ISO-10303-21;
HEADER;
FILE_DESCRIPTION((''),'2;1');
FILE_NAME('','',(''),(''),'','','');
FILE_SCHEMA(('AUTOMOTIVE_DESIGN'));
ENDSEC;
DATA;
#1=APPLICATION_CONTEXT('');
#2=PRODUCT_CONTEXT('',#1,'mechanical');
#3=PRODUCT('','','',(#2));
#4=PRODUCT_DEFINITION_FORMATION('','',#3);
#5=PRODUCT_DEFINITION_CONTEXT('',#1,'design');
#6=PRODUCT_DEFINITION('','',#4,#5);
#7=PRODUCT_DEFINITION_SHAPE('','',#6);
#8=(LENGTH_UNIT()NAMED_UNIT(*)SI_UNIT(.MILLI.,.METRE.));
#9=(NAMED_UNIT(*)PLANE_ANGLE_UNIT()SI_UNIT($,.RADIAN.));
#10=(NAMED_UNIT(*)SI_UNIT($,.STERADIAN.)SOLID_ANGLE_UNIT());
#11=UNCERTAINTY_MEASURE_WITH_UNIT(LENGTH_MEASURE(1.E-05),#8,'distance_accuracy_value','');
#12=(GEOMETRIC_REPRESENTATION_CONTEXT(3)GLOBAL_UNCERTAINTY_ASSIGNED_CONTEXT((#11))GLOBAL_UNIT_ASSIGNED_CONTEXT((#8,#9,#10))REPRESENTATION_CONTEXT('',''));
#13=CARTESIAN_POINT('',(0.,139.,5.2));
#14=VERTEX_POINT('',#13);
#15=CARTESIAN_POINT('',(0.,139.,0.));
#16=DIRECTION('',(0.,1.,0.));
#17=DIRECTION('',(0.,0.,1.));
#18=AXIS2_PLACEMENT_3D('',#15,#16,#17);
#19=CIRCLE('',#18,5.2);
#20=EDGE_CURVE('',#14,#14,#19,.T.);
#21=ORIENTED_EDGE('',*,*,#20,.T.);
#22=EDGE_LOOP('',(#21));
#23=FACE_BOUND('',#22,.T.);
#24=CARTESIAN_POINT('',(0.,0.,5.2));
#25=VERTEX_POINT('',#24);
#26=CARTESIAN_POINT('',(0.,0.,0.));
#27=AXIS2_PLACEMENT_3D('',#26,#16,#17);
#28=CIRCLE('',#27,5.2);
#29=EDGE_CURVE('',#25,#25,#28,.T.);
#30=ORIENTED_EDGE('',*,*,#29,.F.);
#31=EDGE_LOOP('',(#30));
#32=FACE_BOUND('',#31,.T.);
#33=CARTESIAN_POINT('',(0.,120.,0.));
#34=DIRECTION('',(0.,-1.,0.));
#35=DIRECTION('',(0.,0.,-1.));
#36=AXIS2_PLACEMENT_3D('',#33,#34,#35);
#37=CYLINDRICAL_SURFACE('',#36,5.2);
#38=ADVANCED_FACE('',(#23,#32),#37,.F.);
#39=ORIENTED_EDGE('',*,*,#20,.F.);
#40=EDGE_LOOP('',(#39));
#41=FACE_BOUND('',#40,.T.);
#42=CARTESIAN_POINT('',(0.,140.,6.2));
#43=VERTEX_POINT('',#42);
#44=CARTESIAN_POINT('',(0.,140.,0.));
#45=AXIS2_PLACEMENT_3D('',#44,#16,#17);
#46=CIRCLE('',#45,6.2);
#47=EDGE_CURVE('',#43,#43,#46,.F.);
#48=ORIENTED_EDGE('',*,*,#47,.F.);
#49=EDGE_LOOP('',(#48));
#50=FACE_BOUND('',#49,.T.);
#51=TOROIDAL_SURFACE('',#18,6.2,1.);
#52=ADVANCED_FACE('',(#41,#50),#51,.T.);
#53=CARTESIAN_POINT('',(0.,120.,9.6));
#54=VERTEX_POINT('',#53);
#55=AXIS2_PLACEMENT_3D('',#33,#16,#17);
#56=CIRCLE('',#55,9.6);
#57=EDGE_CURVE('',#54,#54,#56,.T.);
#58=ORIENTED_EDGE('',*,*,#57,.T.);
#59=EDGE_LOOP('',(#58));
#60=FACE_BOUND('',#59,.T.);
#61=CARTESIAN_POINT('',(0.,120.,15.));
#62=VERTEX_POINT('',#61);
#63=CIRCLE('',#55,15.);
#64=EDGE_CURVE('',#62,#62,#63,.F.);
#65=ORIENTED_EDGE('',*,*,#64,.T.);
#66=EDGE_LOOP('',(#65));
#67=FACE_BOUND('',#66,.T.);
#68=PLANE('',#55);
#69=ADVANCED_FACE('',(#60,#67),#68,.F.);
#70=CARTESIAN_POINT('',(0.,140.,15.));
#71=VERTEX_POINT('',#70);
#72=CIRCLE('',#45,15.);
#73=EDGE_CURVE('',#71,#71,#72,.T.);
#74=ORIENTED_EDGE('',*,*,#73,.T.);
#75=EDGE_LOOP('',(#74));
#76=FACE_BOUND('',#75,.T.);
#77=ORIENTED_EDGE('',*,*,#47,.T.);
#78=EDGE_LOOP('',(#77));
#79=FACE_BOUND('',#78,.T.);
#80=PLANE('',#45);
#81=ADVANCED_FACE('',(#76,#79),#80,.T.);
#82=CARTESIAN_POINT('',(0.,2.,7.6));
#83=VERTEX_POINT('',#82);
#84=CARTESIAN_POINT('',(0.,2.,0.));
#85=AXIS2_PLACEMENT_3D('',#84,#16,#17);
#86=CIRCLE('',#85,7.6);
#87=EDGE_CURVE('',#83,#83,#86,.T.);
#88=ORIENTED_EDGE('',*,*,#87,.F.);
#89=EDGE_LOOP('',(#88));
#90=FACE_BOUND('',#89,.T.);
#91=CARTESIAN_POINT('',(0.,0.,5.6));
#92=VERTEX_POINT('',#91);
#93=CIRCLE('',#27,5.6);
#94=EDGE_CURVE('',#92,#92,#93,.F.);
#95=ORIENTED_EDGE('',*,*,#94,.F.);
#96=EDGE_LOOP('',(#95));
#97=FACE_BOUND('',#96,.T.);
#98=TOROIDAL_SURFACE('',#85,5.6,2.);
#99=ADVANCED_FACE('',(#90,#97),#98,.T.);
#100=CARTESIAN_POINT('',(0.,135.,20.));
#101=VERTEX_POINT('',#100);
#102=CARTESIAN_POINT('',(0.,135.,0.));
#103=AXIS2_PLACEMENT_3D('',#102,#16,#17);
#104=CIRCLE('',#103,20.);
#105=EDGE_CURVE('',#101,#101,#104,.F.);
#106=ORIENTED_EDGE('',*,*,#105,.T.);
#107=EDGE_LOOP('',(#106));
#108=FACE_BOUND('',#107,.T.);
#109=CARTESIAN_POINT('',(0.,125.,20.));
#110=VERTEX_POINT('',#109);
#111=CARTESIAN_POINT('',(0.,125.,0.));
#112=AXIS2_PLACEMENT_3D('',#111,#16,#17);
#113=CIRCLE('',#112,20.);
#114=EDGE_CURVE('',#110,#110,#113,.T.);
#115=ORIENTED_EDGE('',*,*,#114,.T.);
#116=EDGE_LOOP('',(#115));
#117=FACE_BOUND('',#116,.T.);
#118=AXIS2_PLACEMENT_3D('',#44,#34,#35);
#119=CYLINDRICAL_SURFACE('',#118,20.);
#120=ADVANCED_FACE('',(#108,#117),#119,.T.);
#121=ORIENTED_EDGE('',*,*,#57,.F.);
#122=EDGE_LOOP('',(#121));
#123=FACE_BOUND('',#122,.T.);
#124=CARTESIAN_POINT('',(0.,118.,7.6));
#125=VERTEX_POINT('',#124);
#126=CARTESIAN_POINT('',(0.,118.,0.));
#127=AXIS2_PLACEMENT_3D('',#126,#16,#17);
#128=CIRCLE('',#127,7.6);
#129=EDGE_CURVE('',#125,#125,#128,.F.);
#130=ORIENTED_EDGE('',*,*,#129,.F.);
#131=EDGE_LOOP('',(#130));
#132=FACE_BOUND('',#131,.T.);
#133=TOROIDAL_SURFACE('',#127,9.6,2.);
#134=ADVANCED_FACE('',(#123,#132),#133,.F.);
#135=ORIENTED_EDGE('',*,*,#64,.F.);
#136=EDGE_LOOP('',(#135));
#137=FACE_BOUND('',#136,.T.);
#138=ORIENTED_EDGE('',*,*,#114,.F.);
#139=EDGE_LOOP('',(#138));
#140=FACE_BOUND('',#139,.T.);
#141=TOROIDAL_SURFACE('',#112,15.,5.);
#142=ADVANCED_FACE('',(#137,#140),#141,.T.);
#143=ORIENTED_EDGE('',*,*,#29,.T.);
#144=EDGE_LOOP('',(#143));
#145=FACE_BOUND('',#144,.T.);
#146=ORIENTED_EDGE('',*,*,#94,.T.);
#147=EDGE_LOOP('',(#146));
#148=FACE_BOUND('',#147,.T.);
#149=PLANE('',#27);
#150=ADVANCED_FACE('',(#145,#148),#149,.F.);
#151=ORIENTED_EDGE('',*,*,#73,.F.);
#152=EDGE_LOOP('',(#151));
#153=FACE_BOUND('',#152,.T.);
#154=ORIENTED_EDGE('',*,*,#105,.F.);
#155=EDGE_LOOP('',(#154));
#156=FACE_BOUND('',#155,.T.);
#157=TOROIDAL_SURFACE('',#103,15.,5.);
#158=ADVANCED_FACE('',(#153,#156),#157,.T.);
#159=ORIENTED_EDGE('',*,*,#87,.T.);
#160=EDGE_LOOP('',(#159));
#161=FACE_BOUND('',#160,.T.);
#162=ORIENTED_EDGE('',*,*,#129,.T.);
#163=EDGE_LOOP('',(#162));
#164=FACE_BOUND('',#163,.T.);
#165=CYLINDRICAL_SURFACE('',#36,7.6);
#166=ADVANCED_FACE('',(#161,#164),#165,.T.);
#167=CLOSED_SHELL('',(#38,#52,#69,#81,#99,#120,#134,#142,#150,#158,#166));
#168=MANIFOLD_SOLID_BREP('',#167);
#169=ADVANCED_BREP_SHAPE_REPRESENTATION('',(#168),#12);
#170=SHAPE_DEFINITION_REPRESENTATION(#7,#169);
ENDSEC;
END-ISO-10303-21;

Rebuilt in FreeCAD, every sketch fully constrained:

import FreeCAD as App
import Part
import Sketcher

V = App.Vector
Q = App.Units.Quantity


def edges_at(feature, points):
    """Names of the edges that pass closest to the given points."""
    edges = feature.Shape.Edges
    near = lambda p: min(range(len(edges)), key=lambda i: edges[i].distToShape(Part.Vertex(*p))[0])
    return sorted({f"Edge{near(p) + 1}" for p in points})

doc = App.newDocument("Part")
params = doc.addObject("Spreadsheet::Sheet", "Params")
for row, (alias, value) in enumerate([
    ("sketch1_diameter", "15.2 mm"),
    ("sketch1_diameter2", "10.4 mm"),
    ("pad1_length", "120 mm"),
    ("sketch2_diameter", "40 mm"),
    ("pad2_length", "20 mm"),
    ("sketch3_diameter", "10.4 mm"),
    ("pocket1_length", "157 mm"),
    ("fillet_radius", "5 mm"),
    ("fillet2_radius", "2 mm"),
    ("fillet3_radius", "1 mm"),
], start=1):
    params.set(f"A{row}", alias)
    params.set(f"B{row}", "=" + value)
    params.setAlias(f"B{row}", alias)

body = doc.addObject("PartDesign::Body", "Body")

sketch1 = body.newObject("Sketcher::SketchObject", "Sketch")
sketch1.AttachmentSupport = (doc.getObject("XZ_Plane"), [""])
sketch1.MapMode = "FlatFace"
sketch1.addGeometry(Part.Circle(V(0, 0, 0), V(0, 0, 1), 7.6), False)
sketch1.addGeometry(Part.Circle(V(0, 0, 0), V(0, 0, 1), 5.2), False)
sketch1.addConstraint(Sketcher.Constraint("Coincident", 0, 3, -1, 1))
sketch1.addConstraint(Sketcher.Constraint("Coincident", 1, 3, -1, 1))
sketch1.addConstraint(Sketcher.Constraint("Diameter", 0, Q("15.2 mm")))
sketch1.addConstraint(Sketcher.Constraint("Diameter", 1, Q("10.4 mm")))
sketch1.setExpression("Constraints[2]", "Params.sketch1_diameter")
sketch1.setExpression("Constraints[3]", "Params.sketch1_diameter2")
pad1 = body.newObject("PartDesign::Pad", "Pad")
pad1.Profile = sketch1
pad1.setExpression("Length", "Params.pad1_length")
pad1.Reversed = True

sketch2 = body.newObject("Sketcher::SketchObject", "Sketch001")
sketch2.AttachmentSupport = (doc.getObject("XZ_Plane"), [""])
sketch2.MapMode = "FlatFace"
sketch2.AttachmentOffset = App.Placement(V(0, 0, -120), App.Rotation())
sketch2.addGeometry(Part.Circle(V(0, 0, 0), V(0, 0, 1), 20), False)
sketch2.addConstraint(Sketcher.Constraint("Coincident", 0, 3, -1, 1))
sketch2.addConstraint(Sketcher.Constraint("Diameter", 0, Q("40 mm")))
sketch2.setExpression("Constraints[1]", "Params.sketch2_diameter")
pad2 = body.newObject("PartDesign::Pad", "Pad001")
pad2.Profile = sketch2
pad2.setExpression("Length", "Params.pad2_length")
pad2.Reversed = True

sketch3 = body.newObject("Sketcher::SketchObject", "Sketch002")
sketch3.AttachmentSupport = (doc.getObject("XZ_Plane"), [""])
sketch3.MapMode = "FlatFace"
sketch3.AttachmentOffset = App.Placement(V(0, 0, 17), App.Rotation())
sketch3.addGeometry(Part.Circle(V(0, 0, 0), V(0, 0, 1), 5.2), False)
sketch3.addConstraint(Sketcher.Constraint("Coincident", 0, 3, -1, 1))
sketch3.addConstraint(Sketcher.Constraint("Diameter", 0, Q("10.4 mm")))
sketch3.setExpression("Constraints[1]", "Params.sketch3_diameter")
pocket1 = body.newObject("PartDesign::Pocket", "Pocket")
pocket1.Profile = sketch3
pocket1.setExpression("Length", "Params.pocket1_length")
doc.recompute()

fillet = body.newObject("PartDesign::Fillet", "Fillet")
fillet.Base = (pocket1, edges_at(pocket1, [(0, 140, -20), (0, 120, -20)]))
fillet.setExpression("Radius", "Params.fillet_radius")
doc.recompute()

fillet2 = body.newObject("PartDesign::Fillet", "Fillet001")
fillet2.Base = (fillet, edges_at(fillet, [(0, 0, -7.6), (0, 120, -7.6)]))
fillet2.setExpression("Radius", "Params.fillet2_radius")
doc.recompute()

fillet3 = body.newObject("PartDesign::Fillet", "Fillet002")
fillet3.Base = (fillet2, edges_at(fillet2, [(0, 140, -5.2)]))
fillet3.setExpression("Radius", "Params.fillet3_radius")

doc.recompute()
